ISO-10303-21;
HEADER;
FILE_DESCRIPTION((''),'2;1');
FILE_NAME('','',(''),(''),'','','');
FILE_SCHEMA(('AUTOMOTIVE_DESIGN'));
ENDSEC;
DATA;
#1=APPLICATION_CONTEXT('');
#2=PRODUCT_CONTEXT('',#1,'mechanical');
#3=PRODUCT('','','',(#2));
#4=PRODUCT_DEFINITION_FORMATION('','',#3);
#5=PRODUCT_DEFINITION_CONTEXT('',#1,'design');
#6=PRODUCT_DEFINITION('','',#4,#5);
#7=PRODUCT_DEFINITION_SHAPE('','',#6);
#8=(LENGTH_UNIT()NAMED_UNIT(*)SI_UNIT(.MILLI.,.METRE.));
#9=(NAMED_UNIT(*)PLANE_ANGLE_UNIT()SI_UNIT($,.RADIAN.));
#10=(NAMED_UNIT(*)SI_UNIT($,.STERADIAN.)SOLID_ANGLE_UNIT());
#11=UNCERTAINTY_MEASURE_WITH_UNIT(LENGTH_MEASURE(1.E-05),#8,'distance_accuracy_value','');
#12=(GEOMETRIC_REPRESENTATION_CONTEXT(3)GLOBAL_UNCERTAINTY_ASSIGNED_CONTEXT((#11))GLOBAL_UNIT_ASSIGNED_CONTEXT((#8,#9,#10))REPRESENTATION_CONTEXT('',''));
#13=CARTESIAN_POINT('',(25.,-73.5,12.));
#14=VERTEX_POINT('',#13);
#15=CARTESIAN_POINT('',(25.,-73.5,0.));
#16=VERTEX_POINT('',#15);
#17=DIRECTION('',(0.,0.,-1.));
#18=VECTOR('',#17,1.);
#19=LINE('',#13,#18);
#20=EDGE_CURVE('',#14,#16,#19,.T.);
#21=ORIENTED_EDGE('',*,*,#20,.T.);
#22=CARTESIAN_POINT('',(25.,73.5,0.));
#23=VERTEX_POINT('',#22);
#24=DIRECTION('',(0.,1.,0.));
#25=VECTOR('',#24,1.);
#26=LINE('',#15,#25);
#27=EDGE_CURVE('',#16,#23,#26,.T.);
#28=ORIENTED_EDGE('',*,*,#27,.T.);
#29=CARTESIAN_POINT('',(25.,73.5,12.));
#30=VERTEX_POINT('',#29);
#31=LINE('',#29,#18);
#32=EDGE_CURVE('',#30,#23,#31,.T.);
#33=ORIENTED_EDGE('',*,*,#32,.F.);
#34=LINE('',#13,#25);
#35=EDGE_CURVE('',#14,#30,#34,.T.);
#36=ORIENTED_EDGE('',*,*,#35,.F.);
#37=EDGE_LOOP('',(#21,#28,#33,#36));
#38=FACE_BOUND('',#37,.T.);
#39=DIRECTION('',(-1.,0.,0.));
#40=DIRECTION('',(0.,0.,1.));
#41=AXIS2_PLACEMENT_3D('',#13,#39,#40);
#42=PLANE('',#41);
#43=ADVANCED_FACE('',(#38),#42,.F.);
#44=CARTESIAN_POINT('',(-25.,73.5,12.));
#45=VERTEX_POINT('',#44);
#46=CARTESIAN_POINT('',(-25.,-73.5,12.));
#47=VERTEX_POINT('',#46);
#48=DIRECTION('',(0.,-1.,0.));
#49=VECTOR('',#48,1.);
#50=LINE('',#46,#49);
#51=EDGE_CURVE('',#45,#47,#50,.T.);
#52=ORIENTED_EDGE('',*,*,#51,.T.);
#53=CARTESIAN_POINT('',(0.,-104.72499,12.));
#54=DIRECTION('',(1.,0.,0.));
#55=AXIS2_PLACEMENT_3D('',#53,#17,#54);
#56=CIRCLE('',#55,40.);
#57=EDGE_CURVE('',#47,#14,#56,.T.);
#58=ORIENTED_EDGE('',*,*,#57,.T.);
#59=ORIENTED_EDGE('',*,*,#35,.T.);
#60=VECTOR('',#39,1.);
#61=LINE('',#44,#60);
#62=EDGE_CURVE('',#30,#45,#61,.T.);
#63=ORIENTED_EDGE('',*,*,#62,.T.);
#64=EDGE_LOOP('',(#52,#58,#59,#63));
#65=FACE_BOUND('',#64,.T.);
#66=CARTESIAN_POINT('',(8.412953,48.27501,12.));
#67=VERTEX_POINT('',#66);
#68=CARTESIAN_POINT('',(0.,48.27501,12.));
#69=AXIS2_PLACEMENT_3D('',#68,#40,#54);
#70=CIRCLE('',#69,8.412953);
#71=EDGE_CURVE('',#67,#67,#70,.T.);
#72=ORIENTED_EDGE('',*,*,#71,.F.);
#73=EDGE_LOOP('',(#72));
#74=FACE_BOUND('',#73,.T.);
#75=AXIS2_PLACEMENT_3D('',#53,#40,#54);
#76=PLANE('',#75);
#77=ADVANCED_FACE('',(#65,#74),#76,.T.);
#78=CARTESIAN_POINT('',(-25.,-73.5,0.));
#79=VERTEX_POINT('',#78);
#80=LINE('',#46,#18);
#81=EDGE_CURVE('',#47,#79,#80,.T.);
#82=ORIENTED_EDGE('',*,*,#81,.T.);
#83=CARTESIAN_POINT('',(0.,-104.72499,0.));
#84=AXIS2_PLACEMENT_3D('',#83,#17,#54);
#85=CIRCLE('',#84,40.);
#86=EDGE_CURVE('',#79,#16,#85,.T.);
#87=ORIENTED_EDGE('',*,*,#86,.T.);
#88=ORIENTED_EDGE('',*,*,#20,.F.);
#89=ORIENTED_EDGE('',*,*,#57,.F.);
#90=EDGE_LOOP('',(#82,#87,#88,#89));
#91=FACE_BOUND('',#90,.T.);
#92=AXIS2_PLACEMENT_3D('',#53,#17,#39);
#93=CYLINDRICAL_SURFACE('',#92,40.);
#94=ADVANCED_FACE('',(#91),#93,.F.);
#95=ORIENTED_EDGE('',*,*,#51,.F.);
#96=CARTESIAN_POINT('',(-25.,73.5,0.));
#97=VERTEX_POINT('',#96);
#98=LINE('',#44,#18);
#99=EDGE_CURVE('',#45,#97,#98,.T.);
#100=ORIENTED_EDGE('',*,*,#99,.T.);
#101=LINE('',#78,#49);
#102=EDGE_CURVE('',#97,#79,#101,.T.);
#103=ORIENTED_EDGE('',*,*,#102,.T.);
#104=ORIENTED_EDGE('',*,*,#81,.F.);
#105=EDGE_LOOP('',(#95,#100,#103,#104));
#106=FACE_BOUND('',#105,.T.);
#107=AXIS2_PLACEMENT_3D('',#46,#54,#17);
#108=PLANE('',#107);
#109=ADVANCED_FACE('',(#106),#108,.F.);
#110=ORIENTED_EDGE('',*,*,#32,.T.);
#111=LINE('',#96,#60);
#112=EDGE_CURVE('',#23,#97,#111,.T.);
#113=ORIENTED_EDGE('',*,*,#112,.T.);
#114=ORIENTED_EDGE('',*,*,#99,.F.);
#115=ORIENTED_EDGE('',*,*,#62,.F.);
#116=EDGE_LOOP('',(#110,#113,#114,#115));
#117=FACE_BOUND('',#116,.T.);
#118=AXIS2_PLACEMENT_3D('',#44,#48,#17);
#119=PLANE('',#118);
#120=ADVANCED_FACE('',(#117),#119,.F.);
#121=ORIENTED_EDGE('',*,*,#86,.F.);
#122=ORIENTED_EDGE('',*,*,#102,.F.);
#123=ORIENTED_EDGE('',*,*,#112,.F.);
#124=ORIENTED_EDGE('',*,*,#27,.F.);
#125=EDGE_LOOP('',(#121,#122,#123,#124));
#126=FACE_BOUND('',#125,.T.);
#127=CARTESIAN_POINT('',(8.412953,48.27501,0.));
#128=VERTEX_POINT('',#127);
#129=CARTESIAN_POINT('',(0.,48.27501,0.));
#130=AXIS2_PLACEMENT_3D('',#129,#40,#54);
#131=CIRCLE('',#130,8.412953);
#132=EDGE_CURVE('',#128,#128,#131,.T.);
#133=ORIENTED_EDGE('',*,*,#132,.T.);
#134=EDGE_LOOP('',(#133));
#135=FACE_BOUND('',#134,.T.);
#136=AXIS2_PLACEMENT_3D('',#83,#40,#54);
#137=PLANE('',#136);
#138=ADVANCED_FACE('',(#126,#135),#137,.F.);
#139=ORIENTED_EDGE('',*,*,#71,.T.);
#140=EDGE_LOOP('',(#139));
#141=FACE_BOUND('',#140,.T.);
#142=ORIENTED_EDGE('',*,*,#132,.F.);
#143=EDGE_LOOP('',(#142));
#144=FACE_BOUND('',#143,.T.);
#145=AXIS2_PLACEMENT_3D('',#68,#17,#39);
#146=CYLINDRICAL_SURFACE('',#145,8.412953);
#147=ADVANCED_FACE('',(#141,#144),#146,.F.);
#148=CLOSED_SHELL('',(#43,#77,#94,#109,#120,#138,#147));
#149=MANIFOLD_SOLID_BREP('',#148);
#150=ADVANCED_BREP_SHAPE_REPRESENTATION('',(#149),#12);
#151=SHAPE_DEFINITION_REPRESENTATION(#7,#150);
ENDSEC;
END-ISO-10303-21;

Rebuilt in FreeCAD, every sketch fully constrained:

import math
import FreeCAD as App
import Part
import Sketcher

doc = App.newDocument("Part")
params = doc.addObject("Spreadsheet::Sheet", "Params")
for row, (alias, value) in enumerate([
    ("sketch1_radius", "40 mm"),
    ("sketch1_width", "50 mm"),
    ("sketch1_height", "147 mm"),
    ("pad1_length", "12 mm"),
], start=1):
    params.set(f"A{row}", alias)
    params.set(f"B{row}", "=" + value)
    params.setAlias(f"B{row}", alias)

body = doc.addObject("PartDesign::Body", "Body")

sketch1 = body.newObject("Sketcher::SketchObject", "Sketch")
sketch1.AttachmentSupport = (doc.getObject("XY_Plane"), [""])
sketch1.MapMode = "FlatFace"
sketch1.addGeometry([
    Part.LineSegment(App.Vector(-25, 73.5, 0), App.Vector(-25, -73.5, 0)),
    Part.ArcOfCircle(Part.Circle(App.Vector(0, -104.72499, 0), App.Vector(0, 0, 1), 40), math.radians(51.317813), math.radians(128.682187)),
    Part.LineSegment(App.Vector(25, -73.5, 0), App.Vector(25, 73.5, 0)),
    Part.LineSegment(App.Vector(25, 73.5, 0), App.Vector(-25, 73.5, 0)),
    Part.Circle(App.Vector(0, 48.27501, 0), App.Vector(0, 0, 1), 8.412953),
], False)
sketch1.addConstraint([
    Sketcher.Constraint("Coincident", 0, 2, 1, 2),
    Sketcher.Constraint("Coincident", 1, 1, 2, 1),
    Sketcher.Constraint("Coincident", 2, 2, 3, 1),
    Sketcher.Constraint("Coincident", 3, 2, 0, 1),
    Sketcher.Constraint("Vertical", 0),
    Sketcher.Constraint("Vertical", 2),
    Sketcher.Constraint("Horizontal", 3),
    Sketcher.Constraint("Symmetric", 0, 2, 2, 2, -1, 1),
    Sketcher.Constraint("PointOnObject", 1, 3, -2),
    Sketcher.Constraint("PointOnObject", 4, 3, -2),
    Sketcher.Constraint("Radius", 1, 40.0),
    Sketcher.Constraint("DistanceX", 3, 2, 3, 1, 50.0),
    Sketcher.Constraint("DistanceY", 0, 2, 0, 1, 147.0),
    Sketcher.Constraint("DistanceY", 1, 3, 4, 3, 153.0),
    Sketcher.Constraint("Diameter", 4, 16.825906),
])
sketch1.setExpression("Constraints[10]", "Params.sketch1_radius")
sketch1.setExpression("Constraints[11]", "Params.sketch1_width")
sketch1.setExpression("Constraints[12]", "Params.sketch1_height")
pad1 = body.newObject("PartDesign::Pad", "Pad")
pad1.Profile = sketch1
pad1.setExpression("Length", "Params.pad1_length")

doc.recompute()
